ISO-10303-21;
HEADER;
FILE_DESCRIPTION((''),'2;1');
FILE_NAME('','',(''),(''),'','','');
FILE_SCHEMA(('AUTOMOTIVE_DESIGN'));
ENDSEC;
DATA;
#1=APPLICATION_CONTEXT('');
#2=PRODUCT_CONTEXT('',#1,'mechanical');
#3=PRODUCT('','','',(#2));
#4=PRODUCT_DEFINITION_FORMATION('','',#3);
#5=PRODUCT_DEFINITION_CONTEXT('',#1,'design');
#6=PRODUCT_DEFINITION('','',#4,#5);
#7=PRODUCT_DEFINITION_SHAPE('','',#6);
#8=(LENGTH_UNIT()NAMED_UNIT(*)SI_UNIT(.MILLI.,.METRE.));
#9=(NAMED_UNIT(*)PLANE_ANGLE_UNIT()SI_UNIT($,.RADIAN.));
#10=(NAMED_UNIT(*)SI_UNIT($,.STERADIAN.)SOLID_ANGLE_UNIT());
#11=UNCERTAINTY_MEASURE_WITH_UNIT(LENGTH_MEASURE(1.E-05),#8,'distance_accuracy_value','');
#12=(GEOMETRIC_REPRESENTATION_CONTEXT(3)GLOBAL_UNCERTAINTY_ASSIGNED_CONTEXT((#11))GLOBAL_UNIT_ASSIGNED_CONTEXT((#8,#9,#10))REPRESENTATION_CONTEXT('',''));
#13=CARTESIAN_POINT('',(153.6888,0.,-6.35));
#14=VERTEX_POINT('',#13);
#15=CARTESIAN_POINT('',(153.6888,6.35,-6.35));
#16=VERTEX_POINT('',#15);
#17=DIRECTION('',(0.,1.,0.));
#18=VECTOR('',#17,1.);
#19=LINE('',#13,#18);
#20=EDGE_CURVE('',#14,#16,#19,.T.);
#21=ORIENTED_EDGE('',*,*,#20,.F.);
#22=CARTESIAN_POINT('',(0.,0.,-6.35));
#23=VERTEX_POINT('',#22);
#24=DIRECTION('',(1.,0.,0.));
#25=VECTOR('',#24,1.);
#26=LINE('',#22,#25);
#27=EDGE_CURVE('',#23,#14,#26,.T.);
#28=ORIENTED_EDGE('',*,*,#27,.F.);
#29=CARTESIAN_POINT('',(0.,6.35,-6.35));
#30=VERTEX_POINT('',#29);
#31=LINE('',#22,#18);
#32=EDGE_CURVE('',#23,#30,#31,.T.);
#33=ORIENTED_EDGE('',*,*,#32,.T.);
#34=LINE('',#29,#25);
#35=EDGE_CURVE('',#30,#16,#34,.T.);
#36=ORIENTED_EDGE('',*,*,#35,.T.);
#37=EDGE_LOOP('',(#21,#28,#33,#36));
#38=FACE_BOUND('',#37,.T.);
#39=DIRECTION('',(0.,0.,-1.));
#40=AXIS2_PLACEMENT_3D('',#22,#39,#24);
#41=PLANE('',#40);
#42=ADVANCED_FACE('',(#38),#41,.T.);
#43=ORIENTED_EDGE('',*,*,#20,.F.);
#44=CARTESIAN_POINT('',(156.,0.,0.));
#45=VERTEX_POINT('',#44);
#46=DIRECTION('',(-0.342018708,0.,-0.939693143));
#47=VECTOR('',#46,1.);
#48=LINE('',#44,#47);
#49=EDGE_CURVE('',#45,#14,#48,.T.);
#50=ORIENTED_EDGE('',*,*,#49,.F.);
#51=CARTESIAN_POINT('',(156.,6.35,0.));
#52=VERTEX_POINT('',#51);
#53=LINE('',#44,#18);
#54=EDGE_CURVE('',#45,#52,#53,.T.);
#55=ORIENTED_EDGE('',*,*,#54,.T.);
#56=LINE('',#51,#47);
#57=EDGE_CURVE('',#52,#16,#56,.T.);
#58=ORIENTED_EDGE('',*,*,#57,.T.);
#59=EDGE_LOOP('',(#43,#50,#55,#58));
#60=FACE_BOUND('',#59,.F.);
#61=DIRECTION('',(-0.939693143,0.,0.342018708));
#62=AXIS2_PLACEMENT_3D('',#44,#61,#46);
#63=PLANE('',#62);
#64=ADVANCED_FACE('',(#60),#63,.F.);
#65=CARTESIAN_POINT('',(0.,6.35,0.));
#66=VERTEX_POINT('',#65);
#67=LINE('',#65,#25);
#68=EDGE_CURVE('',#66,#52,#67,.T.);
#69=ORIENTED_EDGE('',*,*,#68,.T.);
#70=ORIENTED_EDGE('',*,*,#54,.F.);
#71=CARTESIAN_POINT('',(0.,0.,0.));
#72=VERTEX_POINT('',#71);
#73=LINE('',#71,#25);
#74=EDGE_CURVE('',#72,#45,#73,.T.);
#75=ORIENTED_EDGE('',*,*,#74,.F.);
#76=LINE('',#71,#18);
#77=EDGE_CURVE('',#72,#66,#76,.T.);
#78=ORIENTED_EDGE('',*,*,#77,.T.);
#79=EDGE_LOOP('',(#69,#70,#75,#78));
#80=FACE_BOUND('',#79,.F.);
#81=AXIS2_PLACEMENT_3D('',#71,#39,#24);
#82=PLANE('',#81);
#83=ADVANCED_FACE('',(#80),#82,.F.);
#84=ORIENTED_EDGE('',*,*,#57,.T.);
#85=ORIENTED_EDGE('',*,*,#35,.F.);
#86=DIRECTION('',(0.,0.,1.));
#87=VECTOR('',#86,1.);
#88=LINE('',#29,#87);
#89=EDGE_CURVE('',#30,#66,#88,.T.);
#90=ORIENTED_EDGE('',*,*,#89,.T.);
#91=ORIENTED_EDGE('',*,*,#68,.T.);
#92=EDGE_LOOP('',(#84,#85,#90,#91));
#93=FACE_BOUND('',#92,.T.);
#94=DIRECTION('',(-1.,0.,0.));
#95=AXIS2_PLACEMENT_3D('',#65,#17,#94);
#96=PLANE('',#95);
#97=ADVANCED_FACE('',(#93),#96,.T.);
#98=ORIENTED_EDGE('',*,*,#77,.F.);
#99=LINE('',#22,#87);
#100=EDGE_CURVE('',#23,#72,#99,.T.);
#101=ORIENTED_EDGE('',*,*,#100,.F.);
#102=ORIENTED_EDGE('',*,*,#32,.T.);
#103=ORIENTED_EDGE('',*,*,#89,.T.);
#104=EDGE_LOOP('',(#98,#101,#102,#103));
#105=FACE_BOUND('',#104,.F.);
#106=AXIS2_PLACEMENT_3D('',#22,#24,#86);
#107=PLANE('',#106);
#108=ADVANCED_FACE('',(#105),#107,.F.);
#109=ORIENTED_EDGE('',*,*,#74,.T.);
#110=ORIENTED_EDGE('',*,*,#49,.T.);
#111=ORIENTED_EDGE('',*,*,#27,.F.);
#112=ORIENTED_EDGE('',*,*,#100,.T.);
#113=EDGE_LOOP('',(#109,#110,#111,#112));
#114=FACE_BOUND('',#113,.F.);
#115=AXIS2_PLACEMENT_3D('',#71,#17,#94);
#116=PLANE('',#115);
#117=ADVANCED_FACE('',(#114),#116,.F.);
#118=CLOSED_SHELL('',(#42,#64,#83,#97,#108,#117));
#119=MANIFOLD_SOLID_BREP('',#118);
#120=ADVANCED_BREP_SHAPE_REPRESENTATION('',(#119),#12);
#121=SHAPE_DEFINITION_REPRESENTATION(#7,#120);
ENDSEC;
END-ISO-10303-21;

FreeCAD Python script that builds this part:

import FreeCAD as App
import Part
import Sketcher

V = App.Vector
Q = App.Units.Quantity


def add_polygon(sketch, points):
    """Adds a closed chain of lines whose ends are joined by coincident constraints."""
    first, n = sketch.GeometryCount, len(points)
    for a, b in zip(points, points[1:] + points[:1]):
        sketch.addGeometry(Part.LineSegment(App.Vector(*a, 0), App.Vector(*b, 0)), False)
    for i in range(n):
        sketch.addConstraint(Sketcher.Constraint("Coincident", first + i, 2, first + (i + 1) % n, 1))

doc = App.newDocument("Part")
body = doc.addObject("PartDesign::Body", "Body")

# Sketch on XZ plane
sketch1 = body.newObject("Sketcher::SketchObject", "Sketch")
sketch1.AttachmentSupport = (doc.getObject("XZ_Plane"), [""])
sketch1.MapMode = "FlatFace"
add_polygon(sketch1, [(0, -6), (0, 0), (156, 0), (154, -6)])  # lines 0-3
sketch1.addConstraint([
    Sketcher.Constraint("Vertical", 0),
    Sketcher.Constraint("Horizontal", 1),
    Sketcher.Constraint("Horizontal", 3),
    Sketcher.Constraint("Coincident", 0, 2, -1, 1),
    Sketcher.Constraint("DistanceX", 1, 1, 1, 2, Q("156 mm")),
    Sketcher.Constraint("Angle", 2, Q("-110 deg")),
    Sketcher.Constraint("DistanceY", 0, 1, 0, 2, Q("6.35 mm")),
])
pad1 = body.newObject("PartDesign::Pad", "Pad")
pad1.Profile = sketch1
pad1.Length = 6.35
pad1.Reversed = True

doc.recompute()
